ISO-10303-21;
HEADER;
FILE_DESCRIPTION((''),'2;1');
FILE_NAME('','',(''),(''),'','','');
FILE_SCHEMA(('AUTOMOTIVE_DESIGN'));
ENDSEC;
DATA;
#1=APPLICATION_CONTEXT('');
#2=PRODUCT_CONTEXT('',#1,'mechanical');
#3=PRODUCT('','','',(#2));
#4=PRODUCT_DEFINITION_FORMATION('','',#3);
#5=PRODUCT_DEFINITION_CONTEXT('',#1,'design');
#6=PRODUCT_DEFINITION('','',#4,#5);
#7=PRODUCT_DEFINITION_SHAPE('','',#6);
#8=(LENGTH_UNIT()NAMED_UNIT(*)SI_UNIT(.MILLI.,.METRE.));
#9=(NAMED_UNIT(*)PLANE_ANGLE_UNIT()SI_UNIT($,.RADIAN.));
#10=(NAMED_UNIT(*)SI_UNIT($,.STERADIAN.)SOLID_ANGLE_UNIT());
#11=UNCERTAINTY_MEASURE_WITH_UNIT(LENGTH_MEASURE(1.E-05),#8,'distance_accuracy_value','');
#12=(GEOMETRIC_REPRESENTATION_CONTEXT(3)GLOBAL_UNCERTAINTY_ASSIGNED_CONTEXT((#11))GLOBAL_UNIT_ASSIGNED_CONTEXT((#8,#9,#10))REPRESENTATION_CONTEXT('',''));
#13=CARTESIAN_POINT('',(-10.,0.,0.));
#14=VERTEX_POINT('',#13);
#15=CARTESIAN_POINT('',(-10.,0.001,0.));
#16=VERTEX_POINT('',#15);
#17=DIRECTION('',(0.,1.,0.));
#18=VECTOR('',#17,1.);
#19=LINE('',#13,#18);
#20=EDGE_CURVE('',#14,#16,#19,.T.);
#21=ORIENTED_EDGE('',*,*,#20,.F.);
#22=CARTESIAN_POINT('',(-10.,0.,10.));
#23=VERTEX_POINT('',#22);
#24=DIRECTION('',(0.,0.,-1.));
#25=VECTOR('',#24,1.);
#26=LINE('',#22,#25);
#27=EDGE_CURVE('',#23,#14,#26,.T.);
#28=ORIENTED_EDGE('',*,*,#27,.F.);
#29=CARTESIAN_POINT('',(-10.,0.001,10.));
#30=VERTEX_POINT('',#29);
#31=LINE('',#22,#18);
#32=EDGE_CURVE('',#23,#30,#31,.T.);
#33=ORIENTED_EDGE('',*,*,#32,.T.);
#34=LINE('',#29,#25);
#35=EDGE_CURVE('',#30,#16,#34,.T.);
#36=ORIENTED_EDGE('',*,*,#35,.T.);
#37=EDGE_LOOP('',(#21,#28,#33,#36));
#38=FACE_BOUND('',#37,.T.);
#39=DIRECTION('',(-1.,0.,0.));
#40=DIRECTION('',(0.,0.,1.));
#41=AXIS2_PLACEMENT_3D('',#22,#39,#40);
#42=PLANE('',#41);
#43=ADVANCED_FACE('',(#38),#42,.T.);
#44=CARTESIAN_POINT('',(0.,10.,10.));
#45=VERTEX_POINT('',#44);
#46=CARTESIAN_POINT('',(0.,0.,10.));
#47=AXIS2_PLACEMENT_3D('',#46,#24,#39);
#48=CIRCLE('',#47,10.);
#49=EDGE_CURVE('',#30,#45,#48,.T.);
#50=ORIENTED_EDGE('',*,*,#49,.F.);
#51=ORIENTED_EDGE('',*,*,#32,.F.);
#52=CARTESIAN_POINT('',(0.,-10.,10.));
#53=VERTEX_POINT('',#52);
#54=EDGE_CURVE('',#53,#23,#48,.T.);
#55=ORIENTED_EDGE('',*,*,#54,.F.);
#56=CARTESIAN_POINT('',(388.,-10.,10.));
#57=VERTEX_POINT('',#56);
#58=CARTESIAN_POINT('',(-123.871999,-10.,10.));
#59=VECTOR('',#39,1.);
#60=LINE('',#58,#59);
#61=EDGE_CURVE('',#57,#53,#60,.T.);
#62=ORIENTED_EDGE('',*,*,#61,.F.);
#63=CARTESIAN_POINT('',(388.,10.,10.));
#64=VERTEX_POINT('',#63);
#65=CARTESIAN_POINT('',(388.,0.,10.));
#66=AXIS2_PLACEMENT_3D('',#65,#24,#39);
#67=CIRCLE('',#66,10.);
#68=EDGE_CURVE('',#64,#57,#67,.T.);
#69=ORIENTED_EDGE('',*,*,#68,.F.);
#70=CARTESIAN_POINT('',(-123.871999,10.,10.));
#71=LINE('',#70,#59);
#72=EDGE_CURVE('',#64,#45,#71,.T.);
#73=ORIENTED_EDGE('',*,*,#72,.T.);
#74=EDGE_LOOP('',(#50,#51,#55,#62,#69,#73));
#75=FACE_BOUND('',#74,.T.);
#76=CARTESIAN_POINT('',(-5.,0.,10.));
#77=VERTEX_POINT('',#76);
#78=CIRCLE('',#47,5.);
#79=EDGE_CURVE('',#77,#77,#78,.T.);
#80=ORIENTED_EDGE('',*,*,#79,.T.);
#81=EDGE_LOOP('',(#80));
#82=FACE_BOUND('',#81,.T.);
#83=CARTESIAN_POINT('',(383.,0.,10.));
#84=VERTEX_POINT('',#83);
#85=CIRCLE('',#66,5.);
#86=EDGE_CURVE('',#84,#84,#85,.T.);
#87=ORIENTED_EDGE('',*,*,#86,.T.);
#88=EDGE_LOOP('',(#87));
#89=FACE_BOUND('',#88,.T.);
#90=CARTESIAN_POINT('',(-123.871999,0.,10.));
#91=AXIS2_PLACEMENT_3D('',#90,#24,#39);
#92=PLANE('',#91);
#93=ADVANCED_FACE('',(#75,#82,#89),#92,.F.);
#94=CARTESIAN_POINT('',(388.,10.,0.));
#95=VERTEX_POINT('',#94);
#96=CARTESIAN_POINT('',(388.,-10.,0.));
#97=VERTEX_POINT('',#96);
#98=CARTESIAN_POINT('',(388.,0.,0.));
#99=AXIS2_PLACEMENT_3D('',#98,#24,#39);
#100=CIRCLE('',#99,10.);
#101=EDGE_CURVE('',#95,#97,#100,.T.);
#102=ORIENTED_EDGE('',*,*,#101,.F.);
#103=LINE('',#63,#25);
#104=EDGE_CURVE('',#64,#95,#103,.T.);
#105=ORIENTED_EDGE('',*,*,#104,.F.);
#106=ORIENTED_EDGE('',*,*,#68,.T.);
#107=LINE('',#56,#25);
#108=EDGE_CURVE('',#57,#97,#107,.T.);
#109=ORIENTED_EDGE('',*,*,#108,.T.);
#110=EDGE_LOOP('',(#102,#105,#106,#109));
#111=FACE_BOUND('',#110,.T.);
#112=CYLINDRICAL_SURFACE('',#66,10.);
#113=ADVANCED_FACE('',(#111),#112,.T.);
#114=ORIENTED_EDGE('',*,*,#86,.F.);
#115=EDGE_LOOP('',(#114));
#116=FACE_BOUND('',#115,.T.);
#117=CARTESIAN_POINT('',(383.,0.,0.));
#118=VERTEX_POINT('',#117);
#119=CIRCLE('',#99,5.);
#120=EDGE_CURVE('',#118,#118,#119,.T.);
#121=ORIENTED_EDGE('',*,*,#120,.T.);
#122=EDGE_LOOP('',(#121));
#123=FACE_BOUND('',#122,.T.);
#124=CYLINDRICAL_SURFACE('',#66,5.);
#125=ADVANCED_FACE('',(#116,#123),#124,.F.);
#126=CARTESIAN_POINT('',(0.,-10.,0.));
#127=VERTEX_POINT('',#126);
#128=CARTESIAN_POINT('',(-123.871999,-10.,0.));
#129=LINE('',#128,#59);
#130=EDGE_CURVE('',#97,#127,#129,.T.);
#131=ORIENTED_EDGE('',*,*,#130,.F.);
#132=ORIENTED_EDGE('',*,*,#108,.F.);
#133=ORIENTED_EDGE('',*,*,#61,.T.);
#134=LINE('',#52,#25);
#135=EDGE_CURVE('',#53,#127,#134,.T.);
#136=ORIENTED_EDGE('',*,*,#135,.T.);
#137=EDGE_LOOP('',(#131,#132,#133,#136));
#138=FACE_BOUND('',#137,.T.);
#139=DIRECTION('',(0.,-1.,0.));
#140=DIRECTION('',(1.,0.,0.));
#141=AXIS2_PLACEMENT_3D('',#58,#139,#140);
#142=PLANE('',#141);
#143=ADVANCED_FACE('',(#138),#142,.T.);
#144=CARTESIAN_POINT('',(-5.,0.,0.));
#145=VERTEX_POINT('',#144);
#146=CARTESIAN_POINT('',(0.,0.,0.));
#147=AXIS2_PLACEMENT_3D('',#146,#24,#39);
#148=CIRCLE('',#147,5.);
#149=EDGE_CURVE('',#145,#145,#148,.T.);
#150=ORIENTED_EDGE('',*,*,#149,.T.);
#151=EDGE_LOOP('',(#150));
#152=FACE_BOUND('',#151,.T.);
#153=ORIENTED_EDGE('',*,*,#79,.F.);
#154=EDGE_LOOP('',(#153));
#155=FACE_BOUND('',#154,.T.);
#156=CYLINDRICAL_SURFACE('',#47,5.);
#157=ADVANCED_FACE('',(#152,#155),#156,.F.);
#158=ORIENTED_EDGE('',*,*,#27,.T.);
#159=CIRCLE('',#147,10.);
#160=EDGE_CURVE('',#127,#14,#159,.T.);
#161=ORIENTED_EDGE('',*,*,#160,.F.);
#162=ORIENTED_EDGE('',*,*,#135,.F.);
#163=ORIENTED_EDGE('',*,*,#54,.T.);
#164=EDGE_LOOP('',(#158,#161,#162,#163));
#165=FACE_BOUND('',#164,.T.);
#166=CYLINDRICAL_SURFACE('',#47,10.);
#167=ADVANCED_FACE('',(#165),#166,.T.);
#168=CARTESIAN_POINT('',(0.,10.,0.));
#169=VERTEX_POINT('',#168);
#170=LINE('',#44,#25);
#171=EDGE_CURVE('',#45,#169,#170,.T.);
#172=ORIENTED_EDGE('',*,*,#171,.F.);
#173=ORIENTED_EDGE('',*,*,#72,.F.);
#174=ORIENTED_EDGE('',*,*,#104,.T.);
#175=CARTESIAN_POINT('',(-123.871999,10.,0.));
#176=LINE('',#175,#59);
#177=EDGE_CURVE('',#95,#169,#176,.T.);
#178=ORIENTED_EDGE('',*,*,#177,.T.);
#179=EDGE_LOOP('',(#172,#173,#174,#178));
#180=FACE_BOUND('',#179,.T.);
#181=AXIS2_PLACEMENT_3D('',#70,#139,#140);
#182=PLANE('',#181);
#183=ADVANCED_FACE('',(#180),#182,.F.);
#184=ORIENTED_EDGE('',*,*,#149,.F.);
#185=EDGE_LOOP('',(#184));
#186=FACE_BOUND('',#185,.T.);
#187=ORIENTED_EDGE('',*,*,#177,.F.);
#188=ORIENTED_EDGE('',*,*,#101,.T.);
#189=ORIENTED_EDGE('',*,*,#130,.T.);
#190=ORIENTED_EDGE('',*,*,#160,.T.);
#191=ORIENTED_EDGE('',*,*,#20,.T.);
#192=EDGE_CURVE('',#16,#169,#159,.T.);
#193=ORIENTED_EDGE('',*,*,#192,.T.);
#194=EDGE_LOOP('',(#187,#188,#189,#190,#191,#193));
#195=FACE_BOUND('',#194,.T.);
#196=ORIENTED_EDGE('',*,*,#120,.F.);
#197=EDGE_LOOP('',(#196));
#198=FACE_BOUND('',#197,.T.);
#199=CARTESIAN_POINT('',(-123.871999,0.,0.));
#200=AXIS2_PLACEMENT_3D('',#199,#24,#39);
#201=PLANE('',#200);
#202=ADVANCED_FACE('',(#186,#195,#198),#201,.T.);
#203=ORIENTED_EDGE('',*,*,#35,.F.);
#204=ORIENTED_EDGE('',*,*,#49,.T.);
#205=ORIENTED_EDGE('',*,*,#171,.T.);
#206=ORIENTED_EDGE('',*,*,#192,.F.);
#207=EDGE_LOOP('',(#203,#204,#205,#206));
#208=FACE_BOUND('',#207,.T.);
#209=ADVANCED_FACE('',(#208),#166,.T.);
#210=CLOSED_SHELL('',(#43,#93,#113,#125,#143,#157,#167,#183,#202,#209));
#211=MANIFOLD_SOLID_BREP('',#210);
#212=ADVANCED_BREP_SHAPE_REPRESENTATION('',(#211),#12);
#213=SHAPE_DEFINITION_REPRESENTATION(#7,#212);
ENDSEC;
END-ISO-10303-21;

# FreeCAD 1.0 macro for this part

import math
import FreeCAD as App
import Part
import Sketcher

V = App.Vector
Q = App.Units.Quantity

doc = App.newDocument("Part")
body = doc.addObject("PartDesign::Body", "Body")

# Sketch on XY plane
sketch1 = body.newObject("Sketcher::SketchObject", "Sketch")
sketch1.AttachmentSupport = (doc.getObject("XY_Plane"), [""])
sketch1.MapMode = "FlatFace"
sketch1.addGeometry(Part.LineSegment(V(388, 10, 0), V(0, 10, 0)), False)
sketch1.addGeometry(Part.ArcOfCircle(Part.Circle(V(0, 0, 0), V(0, 0, 1), 10), math.radians(90), math.radians(270)), False)
sketch1.addGeometry(Part.LineSegment(V(0, -10, 0), V(388, -10, 0)), False)
sketch1.addGeometry(Part.ArcOfCircle(Part.Circle(V(388, 0, 0), V(0, 0, 1), 10), math.radians(-90), math.radians(90)), False)
sketch1.addGeometry(Part.Circle(V(388, 0, 0), V(0, 0, 1), 5), False)
sketch1.addGeometry(Part.Circle(V(0, 0, 0), V(0, 0, 1), 5), False)
sketch1.addConstraint(Sketcher.Constraint("Tangent", 0, 2, 1, 1))
sketch1.addConstraint(Sketcher.Constraint("Tangent", 1, 2, 2, 1))
sketch1.addConstraint(Sketcher.Constraint("Tangent", 2, 2, 3, 1))
sketch1.addConstraint(Sketcher.Constraint("Tangent", 3, 2, 0, 1))
sketch1.addConstraint(Sketcher.Constraint("Horizontal", 0))
sketch1.addConstraint(Sketcher.Constraint("Horizontal", 2))
sketch1.addConstraint(Sketcher.Constraint("Coincident", 1, 3, -1, 1))
sketch1.addConstraint(Sketcher.Constraint("Coincident", 5, 3, -1, 1))
sketch1.addConstraint(Sketcher.Constraint("Coincident", 4, 3, 3, 3))
sketch1.addConstraint(Sketcher.Constraint("Equal", 4, 5))
sketch1.addConstraint(Sketcher.Constraint("Diameter", 4, Q("10 mm")))
sketch1.addConstraint(Sketcher.Constraint("Radius", 1, Q("10 mm")))
sketch1.addConstraint(Sketcher.Constraint("DistanceX", 0, 2, 0, 1, Q("388 mm")))
pad1 = body.newObject("PartDesign::Pad", "Pad")
pad1.Profile = sketch1
pad1.Length = 10

doc.recompute()
